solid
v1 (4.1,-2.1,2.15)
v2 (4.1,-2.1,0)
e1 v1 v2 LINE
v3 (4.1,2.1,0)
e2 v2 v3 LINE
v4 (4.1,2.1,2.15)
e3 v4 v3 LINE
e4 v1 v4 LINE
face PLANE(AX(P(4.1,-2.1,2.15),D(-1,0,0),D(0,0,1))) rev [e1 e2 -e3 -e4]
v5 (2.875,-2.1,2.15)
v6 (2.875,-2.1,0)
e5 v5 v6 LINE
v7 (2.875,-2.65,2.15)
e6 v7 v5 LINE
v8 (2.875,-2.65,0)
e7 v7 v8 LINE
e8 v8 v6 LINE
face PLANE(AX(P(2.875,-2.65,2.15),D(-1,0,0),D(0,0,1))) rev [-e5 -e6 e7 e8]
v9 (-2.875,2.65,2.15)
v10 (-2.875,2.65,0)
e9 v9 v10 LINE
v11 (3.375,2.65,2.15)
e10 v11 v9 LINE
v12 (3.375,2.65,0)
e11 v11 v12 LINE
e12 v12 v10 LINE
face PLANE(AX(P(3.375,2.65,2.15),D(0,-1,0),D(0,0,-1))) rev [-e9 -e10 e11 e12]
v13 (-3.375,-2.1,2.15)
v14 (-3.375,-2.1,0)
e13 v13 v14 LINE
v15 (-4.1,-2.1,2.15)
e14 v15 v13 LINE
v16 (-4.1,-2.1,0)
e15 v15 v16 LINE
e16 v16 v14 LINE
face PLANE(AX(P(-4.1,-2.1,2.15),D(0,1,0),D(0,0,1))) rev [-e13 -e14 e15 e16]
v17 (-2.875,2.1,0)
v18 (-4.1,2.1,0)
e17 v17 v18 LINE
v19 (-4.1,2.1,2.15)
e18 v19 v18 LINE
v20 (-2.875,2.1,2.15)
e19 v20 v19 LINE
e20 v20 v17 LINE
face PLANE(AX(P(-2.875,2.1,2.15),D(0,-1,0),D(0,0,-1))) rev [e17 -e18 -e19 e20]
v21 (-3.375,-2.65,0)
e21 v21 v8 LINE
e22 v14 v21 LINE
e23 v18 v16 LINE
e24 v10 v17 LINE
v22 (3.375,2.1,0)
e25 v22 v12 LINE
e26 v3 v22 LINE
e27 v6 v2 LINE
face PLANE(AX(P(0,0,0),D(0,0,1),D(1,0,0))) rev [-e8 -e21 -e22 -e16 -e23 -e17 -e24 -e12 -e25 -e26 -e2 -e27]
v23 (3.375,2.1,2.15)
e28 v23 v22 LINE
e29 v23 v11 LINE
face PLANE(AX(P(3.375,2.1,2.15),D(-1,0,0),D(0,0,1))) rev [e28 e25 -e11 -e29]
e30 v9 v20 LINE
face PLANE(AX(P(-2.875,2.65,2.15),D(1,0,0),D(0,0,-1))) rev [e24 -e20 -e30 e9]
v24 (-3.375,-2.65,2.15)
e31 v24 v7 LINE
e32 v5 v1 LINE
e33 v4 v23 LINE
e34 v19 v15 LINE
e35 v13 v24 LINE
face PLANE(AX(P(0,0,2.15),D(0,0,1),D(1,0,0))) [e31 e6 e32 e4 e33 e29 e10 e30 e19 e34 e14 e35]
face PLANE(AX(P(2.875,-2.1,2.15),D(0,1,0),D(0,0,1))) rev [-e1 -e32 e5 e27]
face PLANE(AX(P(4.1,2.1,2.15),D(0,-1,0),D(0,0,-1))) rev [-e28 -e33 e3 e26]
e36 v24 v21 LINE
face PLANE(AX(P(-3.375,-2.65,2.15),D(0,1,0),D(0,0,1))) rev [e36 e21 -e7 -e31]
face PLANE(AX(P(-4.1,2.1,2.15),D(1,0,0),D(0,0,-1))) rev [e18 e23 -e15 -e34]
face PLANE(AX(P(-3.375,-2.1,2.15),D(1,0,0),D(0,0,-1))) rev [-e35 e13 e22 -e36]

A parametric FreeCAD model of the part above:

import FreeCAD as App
import Part
import Sketcher

V = App.Vector
Q = App.Units.Quantity


def add_polygon(sketch, points):
    """Adds a closed chain of lines whose ends are joined by coincident constraints."""
    first, n = sketch.GeometryCount, len(points)
    for a, b in zip(points, points[1:] + points[:1]):
        sketch.addGeometry(Part.LineSegment(App.Vector(*a, 0), App.Vector(*b, 0)), False)
    for i in range(n):
        sketch.addConstraint(Sketcher.Constraint("Coincident", first + i, 2, first + (i + 1) % n, 1))

doc = App.newDocument("Part")
params = doc.addObject("Spreadsheet::Sheet", "Params")
for row, (alias, value) in enumerate([
    ("sketch1_height", "4.2 mm"),
    ("sketch1_width", "6.25 mm"),
    ("sketch1_height2", "0.55 mm"),
    ("pad1_length", "2.15 mm"),
], start=1):
    params.set(f"A{row}", alias)
    params.set(f"B{row}", "=" + value)
    params.setAlias(f"B{row}", alias)

body = doc.addObject("PartDesign::Body", "Body")

# Sketch on XY plane
sketch1 = body.newObject("Sketcher::SketchObject", "Sketch")
sketch1.AttachmentSupport = (doc.getObject("XY_Plane"), [""])
sketch1.MapMode = "FlatFace"
add_polygon(sketch1, [(2.875, -2.65), (2.875, -2.1), (4.1, -2.1), (4.1, 2.1), (3.375, 2.1), (3.375, 2.65), (-2.875, 2.65), (-2.875, 2.1), (-4.1, 2.1), (-4.1, -2.1), (-3.375, -2.1), (-3.375, -2.65)])  # lines 0-11
sketch1.addConstraint(Sketcher.Constraint("Vertical", 0))
sketch1.addConstraint(Sketcher.Constraint("Horizontal", 1))
sketch1.addConstraint(Sketcher.Constraint("Vertical", 2))
sketch1.addConstraint(Sketcher.Constraint("Horizontal", 3))
sketch1.addConstraint(Sketcher.Constraint("Vertical", 4))
sketch1.addConstraint(Sketcher.Constraint("Horizontal", 5))
sketch1.addConstraint(Sketcher.Constraint("Vertical", 6))
sketch1.addConstraint(Sketcher.Constraint("Horizontal", 7))
sketch1.addConstraint(Sketcher.Constraint("Vertical", 8))
sketch1.addConstraint(Sketcher.Constraint("Horizontal", 9))
sketch1.addConstraint(Sketcher.Constraint("Vertical", 10))
sketch1.addConstraint(Sketcher.Constraint("Horizontal", 11))
sketch1.addConstraint(Sketcher.Constraint("Symmetric", 0, 2, 6, 2, -1, 1))
sketch1.addConstraint(Sketcher.Constraint("Symmetric", 2, 2, 8, 2, -1, 1))
sketch1.addConstraint(Sketcher.Constraint("Symmetric", 4, 2, 10, 2, -1, 1))
sketch1.addConstraint(Sketcher.Constraint("Horizontal", 3, 2, 6, 2))
sketch1.addConstraint(Sketcher.Constraint("DistanceY", 2, 1, 2, 2, Q("4.2 mm")))
sketch1.addConstraint(Sketcher.Constraint("DistanceX", 5, 2, 5, 1, Q("6.25 mm")))
sketch1.addConstraint(Sketcher.Constraint("DistanceY", 0, 1, 0, 2, Q("0.55 mm")))
sketch1.addConstraint(Sketcher.Constraint("DistanceX", -1, 1, 1, 2, Q("4.1 mm")))
sketch1.addConstraint(Sketcher.Constraint("DistanceX", 0, 2, 3, 2, Q("0.5 mm")))
sketch1.setExpression("Constraints[28]", "Params.sketch1_height")
sketch1.setExpression("Constraints[29]", "Params.sketch1_width")
sketch1.setExpression("Constraints[30]", "Params.sketch1_height2")
pad1 = body.newObject("PartDesign::Pad", "Pad")
pad1.Profile = sketch1
pad1.setExpression("Length", "Params.pad1_length")

doc.recompute()
